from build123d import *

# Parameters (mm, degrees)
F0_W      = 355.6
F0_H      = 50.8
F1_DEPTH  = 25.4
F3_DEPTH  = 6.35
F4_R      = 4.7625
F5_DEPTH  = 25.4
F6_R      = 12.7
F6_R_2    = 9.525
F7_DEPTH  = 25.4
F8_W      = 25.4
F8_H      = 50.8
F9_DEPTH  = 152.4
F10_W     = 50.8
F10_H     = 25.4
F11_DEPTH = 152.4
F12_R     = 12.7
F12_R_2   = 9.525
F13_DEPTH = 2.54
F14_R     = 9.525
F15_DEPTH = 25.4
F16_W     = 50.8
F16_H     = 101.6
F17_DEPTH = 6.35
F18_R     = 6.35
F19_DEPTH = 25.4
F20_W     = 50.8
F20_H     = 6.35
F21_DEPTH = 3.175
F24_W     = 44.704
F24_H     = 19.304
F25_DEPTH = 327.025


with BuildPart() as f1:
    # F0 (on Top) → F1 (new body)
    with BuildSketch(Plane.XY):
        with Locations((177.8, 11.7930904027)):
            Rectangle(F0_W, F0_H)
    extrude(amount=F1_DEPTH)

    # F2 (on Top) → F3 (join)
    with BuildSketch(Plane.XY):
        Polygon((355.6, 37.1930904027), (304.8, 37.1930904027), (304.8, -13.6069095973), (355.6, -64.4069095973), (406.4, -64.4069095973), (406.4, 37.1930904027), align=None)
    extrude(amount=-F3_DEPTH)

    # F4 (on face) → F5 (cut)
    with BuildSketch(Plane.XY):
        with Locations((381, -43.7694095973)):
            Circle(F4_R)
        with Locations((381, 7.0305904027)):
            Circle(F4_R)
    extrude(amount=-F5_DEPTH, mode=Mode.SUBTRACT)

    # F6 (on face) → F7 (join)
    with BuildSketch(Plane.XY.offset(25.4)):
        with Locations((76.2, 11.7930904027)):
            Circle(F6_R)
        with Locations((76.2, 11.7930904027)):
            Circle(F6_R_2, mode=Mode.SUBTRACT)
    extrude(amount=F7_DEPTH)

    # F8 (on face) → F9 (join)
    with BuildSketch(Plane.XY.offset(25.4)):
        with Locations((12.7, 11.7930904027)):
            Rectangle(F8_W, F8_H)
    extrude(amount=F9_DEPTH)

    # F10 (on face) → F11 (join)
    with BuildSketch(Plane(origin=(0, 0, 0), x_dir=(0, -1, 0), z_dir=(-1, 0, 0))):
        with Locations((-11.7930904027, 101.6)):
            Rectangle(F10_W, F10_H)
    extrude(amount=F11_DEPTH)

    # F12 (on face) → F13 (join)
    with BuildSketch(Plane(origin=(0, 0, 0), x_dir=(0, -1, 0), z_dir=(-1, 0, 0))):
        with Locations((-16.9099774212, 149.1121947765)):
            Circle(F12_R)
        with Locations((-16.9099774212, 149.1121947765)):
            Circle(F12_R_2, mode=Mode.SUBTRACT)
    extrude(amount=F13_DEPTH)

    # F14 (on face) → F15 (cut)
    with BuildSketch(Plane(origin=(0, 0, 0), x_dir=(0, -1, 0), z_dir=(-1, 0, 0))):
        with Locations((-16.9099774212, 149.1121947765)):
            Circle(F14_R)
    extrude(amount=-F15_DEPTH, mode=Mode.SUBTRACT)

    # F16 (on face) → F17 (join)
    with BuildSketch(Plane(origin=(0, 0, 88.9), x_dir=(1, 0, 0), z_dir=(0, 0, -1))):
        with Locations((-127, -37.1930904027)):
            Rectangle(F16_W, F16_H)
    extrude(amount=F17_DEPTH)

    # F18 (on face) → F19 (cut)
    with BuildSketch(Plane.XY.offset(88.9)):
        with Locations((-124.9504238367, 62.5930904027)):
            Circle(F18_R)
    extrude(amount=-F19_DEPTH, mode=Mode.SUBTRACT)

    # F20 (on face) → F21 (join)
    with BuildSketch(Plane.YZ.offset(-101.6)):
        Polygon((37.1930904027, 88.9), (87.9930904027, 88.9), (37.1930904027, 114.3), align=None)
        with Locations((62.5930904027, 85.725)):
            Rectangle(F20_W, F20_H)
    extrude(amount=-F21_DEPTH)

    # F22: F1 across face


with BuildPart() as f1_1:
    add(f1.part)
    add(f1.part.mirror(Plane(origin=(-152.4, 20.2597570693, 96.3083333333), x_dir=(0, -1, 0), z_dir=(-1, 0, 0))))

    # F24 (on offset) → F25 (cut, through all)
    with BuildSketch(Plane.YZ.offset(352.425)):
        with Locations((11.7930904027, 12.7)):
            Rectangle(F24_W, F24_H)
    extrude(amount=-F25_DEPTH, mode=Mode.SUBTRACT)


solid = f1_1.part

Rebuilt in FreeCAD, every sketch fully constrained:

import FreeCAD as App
import Part
import Sketcher

V = App.Vector
Q = App.Units.Quantity


def add_polygon(sketch, points):
    """Adds a closed chain of lines whose ends are joined by coincident constraints."""
    first, n = sketch.GeometryCount, len(points)
    for a, b in zip(points, points[1:] + points[:1]):
        sketch.addGeometry(Part.LineSegment(App.Vector(*a, 0), App.Vector(*b, 0)), False)
    for i in range(n):
        sketch.addConstraint(Sketcher.Constraint("Coincident", first + i, 2, first + (i + 1) % n, 1))

doc = App.newDocument("Part")
body = doc.addObject("PartDesign::Body", "Body")

# Sketch on XY plane
sketch1 = body.newObject("Sketcher::SketchObject", "Sketch")
sketch1.AttachmentSupport = (doc.getObject("XY_Plane"), [""])
sketch1.MapMode = "FlatFace"
add_polygon(sketch1, [(0, 37), (0, -14), (356, -14), (356, 37)])  # lines 0-3
sketch1.addConstraint([
    Sketcher.Constraint("Vertical", 0),
    Sketcher.Constraint("Horizontal", 1),
    Sketcher.Constraint("Vertical", 2),
    Sketcher.Constraint("Horizontal", 3),
    Sketcher.Constraint("PointOnObject", 0, 2, -2),
    Sketcher.Constraint("DistanceX", 1, 1, 1, 2, Q("14 in")),
    Sketcher.Constraint("DistanceY", 0, 2, 0, 1, Q("2 in")),
    Sketcher.Constraint("DistanceY", 0, 2, -1, 1, Q("13.60691 mm")),
])
pad1 = body.newObject("PartDesign::Pad", "Pad")
pad1.Profile = sketch1
pad1.Length = Q("1 in")

# Sketch on XY plane
sketch2 = body.newObject("Sketcher::SketchObject", "Sketch001")
sketch2.AttachmentSupport = (doc.getObject("XY_Plane"), [""])
sketch2.MapMode = "FlatFace"
add_polygon(sketch2, [(305, 37), (305, -14), (356, -64), (406, -64), (406, 37)])  # lines 0-4
sketch2.addConstraint([
    Sketcher.Constraint("Vertical", 0),
    Sketcher.Constraint("Horizontal", 2),
    Sketcher.Constraint("Vertical", 3),
    Sketcher.Constraint("Horizontal", 4),
    Sketcher.Constraint("Equal", 2, 0),
    Sketcher.Constraint("Equal", 4, 3),
    Sketcher.Constraint("DistanceX", 2, 1, 2, 2, Q("2 in")),
    Sketcher.Constraint("DistanceX", 4, 2, 4, 1, Q("4 in")),
    Sketcher.Constraint("DistanceX", -1, 1, 0, 2, Q("12 in")),
    Sketcher.Constraint("DistanceY", 0, 2, -1, 1, Q("13.60691 mm")),
])
pad2 = body.newObject("PartDesign::Pad", "Pad001")
pad2.Profile = sketch2
pad2.Length = Q("0.25 in")
pad2.Reversed = True

# Sketch on XY plane
sketch3 = body.newObject("Sketcher::SketchObject", "Sketch002")
sketch3.AttachmentSupport = (doc.getObject("XY_Plane"), [""])
sketch3.MapMode = "FlatFace"
sketch3.addGeometry([
    Part.Circle(V(381, -43.8, 0), V(0, 0, 1), 4.8),
    Part.Circle(V(381, 7, 0), V(0, 0, 1), 4.8),
], False)
sketch3.addConstraint([
    Sketcher.Constraint("Equal", 0, 1),
    Sketcher.Constraint("Vertical", 0, 3, 1, 3),
    Sketcher.Constraint("Diameter", 0, Q("0.375 in")),
    Sketcher.Constraint("DistanceX", -1, 1, 0, 3, Q("15 in")),
    Sketcher.Constraint("DistanceY", 0, 3, 1, 3, Q("2 in")),
    Sketcher.Constraint("DistanceY", 0, 3, -1, 1, Q("43.76941 mm")),
])
pocket1 = body.newObject("PartDesign::Pocket", "Pocket")
pocket1.Profile = sketch3
pocket1.Length = Q("1 in")

# Sketch on XY plane
sketch4 = body.newObject("Sketcher::SketchObject", "Sketch003")
sketch4.AttachmentSupport = (doc.getObject("XY_Plane"), [""])
sketch4.MapMode = "FlatFace"
sketch4.AttachmentOffset = App.Placement(V(0, 0, 1 * 25.4), App.Rotation())
sketch4.addGeometry([
    Part.Circle(V(76, 12, 0), V(0, 0, 1), 13),
    Part.Circle(V(76, 12, 0), V(0, 0, 1), 10),
], False)
sketch4.addConstraint([
    Sketcher.Constraint("Coincident", 1, 3, 0, 3),
    Sketcher.Constraint("Diameter", 0, Q("1 in")),
    Sketcher.Constraint("Diameter", 1, Q("0.75 in")),
    Sketcher.Constraint("DistanceX", -1, 1, 0, 3, Q("3 in")),
    Sketcher.Constraint("DistanceY", -1, 1, 0, 3, Q("11.79309 mm")),
])
pad3 = body.newObject("PartDesign::Pad", "Pad002")
pad3.Profile = sketch4
pad3.Length = Q("1 in")

# Sketch on XY plane
sketch5 = body.newObject("Sketcher::SketchObject", "Sketch004")
sketch5.AttachmentSupport = (doc.getObject("XY_Plane"), [""])
sketch5.MapMode = "FlatFace"
sketch5.AttachmentOffset = App.Placement(V(0, 0, 1 * 25.4), App.Rotation())
add_polygon(sketch5, [(0, 37), (0, -14), (25, -14), (25, 37)])  # lines 0-3
sketch5.addConstraint([
    Sketcher.Constraint("Vertical", 0),
    Sketcher.Constraint("Horizontal", 1),
    Sketcher.Constraint("Vertical", 2),
    Sketcher.Constraint("Horizontal", 3),
    Sketcher.Constraint("PointOnObject", 0, 2, -2),
    Sketcher.Constraint("DistanceX", 1, 1, 1, 2, Q("1 in")),
    Sketcher.Constraint("DistanceY", 0, 2, 0, 1, Q("2 in")),
    Sketcher.Constraint("DistanceY", 0, 2, -1, 1, Q("13.60691 mm")),
])
pad4 = body.newObject("PartDesign::Pad", "Pad003")
pad4.Profile = sketch5
pad4.Length = Q("6 in")

# Sketch on YZ plane
sketch6 = body.newObject("Sketcher::SketchObject", "Sketch005")
sketch6.AttachmentSupport = (doc.getObject("YZ_Plane"), [""])
sketch6.MapMode = "FlatFace"
add_polygon(sketch6, [(37, 114), (37, 89), (-14, 89), (-14, 114)])  # lines 0-3
sketch6.addConstraint([
    Sketcher.Constraint("Vertical", 0),
    Sketcher.Constraint("Horizontal", 1),
    Sketcher.Constraint("Vertical", 2),
    Sketcher.Constraint("Horizontal", 3),
    Sketcher.Constraint("DistanceX", 1, 2, 1, 1, Q("2 in")),
    Sketcher.Constraint("DistanceY", 0, 2, 0, 1, Q("1 in")),
    Sketcher.Constraint("DistanceY", -1, 1, 0, 2, Q("3.5 in")),
    Sketcher.Constraint("DistanceX", -1, 1, 0, 2, Q("37.19309 mm")),
])
pad5 = body.newObject("PartDesign::Pad", "Pad004")
pad5.Profile = sketch6
pad5.Length = Q("6 in")
pad5.Reversed = True

# Sketch on YZ plane
sketch7 = body.newObject("Sketcher::SketchObject", "Sketch006")
sketch7.AttachmentSupport = (doc.getObject("YZ_Plane"), [""])
sketch7.MapMode = "FlatFace"
sketch7.addGeometry([
    Part.Circle(V(17, 149, 0), V(0, 0, 1), 13),
    Part.Circle(V(17, 149, 0), V(0, 0, 1), 10),
], False)
sketch7.addConstraint([
    Sketcher.Constraint("Coincident", 1, 3, 0, 3),
    Sketcher.Constraint("Diameter", 0, Q("1 in")),
    Sketcher.Constraint("Diameter", 1, Q("0.75 in")),
    Sketcher.Constraint("DistanceX", -1, 1, 0, 3, Q("16.909977 mm")),
    Sketcher.Constraint("DistanceY", -1, 1, 0, 3, Q("149.112195 mm")),
])
pad6 = body.newObject("PartDesign::Pad", "Pad005")
pad6.Profile = sketch7
pad6.Length = Q("0.1 in")
pad6.Reversed = True

# Sketch on YZ plane
sketch8 = body.newObject("Sketcher::SketchObject", "Sketch007")
sketch8.AttachmentSupport = (doc.getObject("YZ_Plane"), [""])
sketch8.MapMode = "FlatFace"
sketch8.addGeometry(Part.Circle(V(17, 149, 0), V(0, 0, 1), 10), False)
sketch8.addConstraint([
    Sketcher.Constraint("Diameter", 0, Q("0.75 in")),
    Sketcher.Constraint("DistanceX", -1, 1, 0, 3, Q("16.909977 mm")),
    Sketcher.Constraint("DistanceY", -1, 1, 0, 3, Q("149.112195 mm")),
])
pocket2 = body.newObject("PartDesign::Pocket", "Pocket001")
pocket2.Profile = sketch8
pocket2.Length = Q("1 in")
pocket2.Reversed = True

# Sketch on XY plane
sketch9 = body.newObject("Sketcher::SketchObject", "Sketch008")
sketch9.AttachmentSupport = (doc.getObject("XY_Plane"), [""])
sketch9.MapMode = "FlatFace"
sketch9.AttachmentOffset = App.Placement(V(0, 0, 3.5 * 25.4), App.Rotation())
add_polygon(sketch9, [(-152, -14), (-152, 88), (-102, 88), (-102, -14)])  # lines 0-3
sketch9.addConstraint([
    Sketcher.Constraint("Vertical", 0),
    Sketcher.Constraint("Horizontal", 1),
    Sketcher.Constraint("Vertical", 2),
    Sketcher.Constraint("Horizontal", 3),
    Sketcher.Constraint("DistanceX", 1, 1, 1, 2, Q("2 in")),
    Sketcher.Constraint("DistanceY", 0, 1, 0, 2, Q("4 in")),
    Sketcher.Constraint("DistanceX", 0, 2, -1, 1, Q("6 in")),
    Sketcher.Constraint("DistanceY", -1, 1, 0, 2, Q("87.99309 mm")),
])
pad7 = body.newObject("PartDesign::Pad", "Pad006")
pad7.Profile = sketch9
pad7.Length = Q("0.25 in")
pad7.Reversed = True

# Sketch on XY plane
sketch10 = body.newObject("Sketcher::SketchObject", "Sketch009")
sketch10.AttachmentSupport = (doc.getObject("XY_Plane"), [""])
sketch10.MapMode = "FlatFace"
sketch10.AttachmentOffset = App.Placement(V(0, 0, 3.5 * 25.4), App.Rotation())
sketch10.addGeometry(Part.Circle(V(-125, 63, 0), V(0, 0, 1), 6), False)
sketch10.addConstraint([
    Sketcher.Constraint("Diameter", 0, Q("0.5 in")),
    Sketcher.Constraint("DistanceY", -1, 1, 0, 3, Q("62.59309 mm")),
    Sketcher.Constraint("DistanceX", 0, 3, -1, 1, Q("124.950424 mm")),
])
pocket3 = body.newObject("PartDesign::Pocket", "Pocket002")
pocket3.Profile = sketch10
pocket3.Length = Q("1 in")

# Sketch on YZ plane
sketch11 = body.newObject("Sketcher::SketchObject", "Sketch010")
sketch11.AttachmentSupport = (doc.getObject("YZ_Plane"), [""])
sketch11.MapMode = "FlatFace"
sketch11.AttachmentOffset = App.Placement(V(0, 0, -4 * 25.4), App.Rotation())
add_polygon(sketch11, [(88, 89), (37, 114), (37, 83), (88, 83)])  # lines 0-3
sketch11.addConstraint([
    Sketcher.Constraint("Vertical", 1),
    Sketcher.Constraint("Horizontal", 2),
    Sketcher.Constraint("Vertical", 3),
    Sketcher.Constraint("DistanceX", 2, 1, 2, 2, Q("2 in")),
    Sketcher.Constraint("DistanceY", 3, 2, 0, 2, Q("1 in")),
    Sketcher.Constraint("DistanceY", 1, 2, 1, 1, Q("1.25 in")),
    Sketcher.Constraint("DistanceY", -1, 1, 0, 2, Q("4.5 in")),
    Sketcher.Constraint("DistanceX", -1, 1, 0, 2, Q("37.19309 mm")),
])
pad8 = body.newObject("PartDesign::Pad", "Pad007")
pad8.Profile = sketch11
pad8.Length = Q("0.125 in")
pad8.Reversed = True
body2 = doc.addObject("PartDesign::Body", "Body001")
doc.recompute()

body2.BaseFeature = body
doc.recompute()

mirroring = doc.addObject("Part::Mirroring", "Mirroring")
mirroring.Source = body
mirroring.Base = V(-152.4, 20.259757, 96.308333)
mirroring.Normal = V(-1, 0, 0)
body3 = doc.addObject("PartDesign::Body", "Body002")
body3.BaseFeature = mirroring
boolean = body2.newObject("PartDesign::Boolean", "Boolean")
boolean.Type = "Fuse"
boolean.addObjects([body3])
doc.recompute()

# Sketch on YZ plane
sketch12 = body2.newObject("Sketcher::SketchObject", "Sketch011")
sketch12.AttachmentSupport = (doc.getObject("YZ_Plane001"), [""])
sketch12.MapMode = "FlatFace"
sketch12.AttachmentOffset = App.Placement(V(0, 0, 13.875 * 25.4), App.Rotation())
add_polygon(sketch12, [(-11, 22), (-11, 3), (34, 3), (34, 22)])  # lines 0-3
sketch12.addConstraint([
    Sketcher.Constraint("Vertical", 0),
    Sketcher.Constraint("Horizontal", 1),
    Sketcher.Constraint("Vertical", 2),
    Sketcher.Constraint("Horizontal", 3),
    Sketcher.Constraint("DistanceX", 1, 1, 1, 2, Q("1.76 in")),
    Sketcher.Constraint("DistanceY", 0, 2, 0, 1, Q("0.76 in")),
    Sketcher.Constraint("DistanceY", -1, 1, 0, 2, Q("0.12 in")),
    Sketcher.Constraint("DistanceX", 0, 2, -1, 1, Q("10.55891 mm")),
])
pocket4 = body2.newObject("PartDesign::Pocket", "Pocket003")
pocket4.Profile = sketch12
pocket4.Length = Q("12.875 in")
mirroring.Visibility = False

doc.recompute()
